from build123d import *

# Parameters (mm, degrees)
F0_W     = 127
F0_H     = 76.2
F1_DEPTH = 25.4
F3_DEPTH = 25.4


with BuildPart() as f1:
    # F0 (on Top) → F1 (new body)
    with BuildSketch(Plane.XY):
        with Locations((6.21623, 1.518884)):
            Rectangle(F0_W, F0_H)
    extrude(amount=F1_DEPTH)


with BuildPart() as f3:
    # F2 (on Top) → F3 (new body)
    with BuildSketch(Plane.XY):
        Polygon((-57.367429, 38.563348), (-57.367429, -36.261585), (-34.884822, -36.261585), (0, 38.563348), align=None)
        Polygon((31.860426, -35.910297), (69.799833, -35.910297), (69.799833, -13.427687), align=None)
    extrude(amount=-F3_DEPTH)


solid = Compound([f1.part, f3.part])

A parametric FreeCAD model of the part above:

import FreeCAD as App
import Part
import Sketcher

V = App.Vector
Q = App.Units.Quantity

doc = App.newDocument("Part")
body = doc.addObject("PartDesign::Body", "Body")

# Sketch on XY plane
sketch1 = body.newObject("Sketcher::SketchObject", "Sketch")
sketch1.AttachmentSupport = (doc.getObject("XY_Plane"), [""])
sketch1.MapMode = "FlatFace"
sketch1.addGeometry(Part.LineSegment(V(-57, 40, 0), V(-57, -37, 0)), False)
sketch1.addGeometry(Part.LineSegment(V(-57, -37, 0), V(70, -37, 0)), False)
sketch1.addGeometry(Part.LineSegment(V(70, -37, 0), V(70, 40, 0)), False)
sketch1.addGeometry(Part.LineSegment(V(70, 40, 0), V(-57, 40, 0)), False)
sketch1.addConstraint(Sketcher.Constraint("Coincident", 0, 2, 1, 1))
sketch1.addConstraint(Sketcher.Constraint("Coincident", 1, 2, 2, 1))
sketch1.addConstraint(Sketcher.Constraint("Coincident", 2, 2, 3, 1))
sketch1.addConstraint(Sketcher.Constraint("Coincident", 3, 2, 0, 1))
sketch1.addConstraint(Sketcher.Constraint("Vertical", 0))
sketch1.addConstraint(Sketcher.Constraint("Horizontal", 1))
sketch1.addConstraint(Sketcher.Constraint("Vertical", 2))
sketch1.addConstraint(Sketcher.Constraint("Horizontal", 3))
sketch1.addConstraint(Sketcher.Constraint("DistanceX", 1, 1, 1, 2, Q("5 in")))
sketch1.addConstraint(Sketcher.Constraint("DistanceY", 0, 2, 0, 1, Q("3 in")))
sketch1.addConstraint(Sketcher.Constraint("DistanceX", 0, 2, -1, 1, 57.28377))
sketch1.addConstraint(Sketcher.Constraint("DistanceY", 0, 2, -1, 1, 36.581116))
pad1 = body.newObject("PartDesign::Pad", "Pad")
pad1.Profile = sketch1
pad1.Length = Q("1 in")
body2 = doc.addObject("PartDesign::Body", "Body001")
body2.AllowCompound = True

# Sketch on XY plane
sketch2 = body2.newObject("Sketcher::SketchObject", "Sketch001")
sketch2.AttachmentSupport = (doc.getObject("XY_Plane001"), [""])
sketch2.MapMode = "FlatFace"
sketch2.addGeometry(Part.LineSegment(V(-57, 39, 0), V(-57, -36, 0)), False)
sketch2.addGeometry(Part.LineSegment(V(-57, -36, 0), V(-35, -36, 0)), False)
sketch2.addGeometry(Part.LineSegment(V(-35, -36, 0), V(0, 39, 0)), False)
sketch2.addGeometry(Part.LineSegment(V(0, 39, 0), V(-57, 39, 0)), False)
sketch2.addGeometry(Part.LineSegment(V(32, -36, 0), V(70, -36, 0)), False)
sketch2.addGeometry(Part.LineSegment(V(70, -36, 0), V(70, -13, 0)), False)
sketch2.addGeometry(Part.LineSegment(V(70, -13, 0), V(32, -36, 0)), False)
sketch2.addConstraint(Sketcher.Constraint("Coincident", 0, 2, 1, 1))
sketch2.addConstraint(Sketcher.Constraint("Coincident", 1, 2, 2, 1))
sketch2.addConstraint(Sketcher.Constraint("Coincident", 2, 2, 3, 1))
sketch2.addConstraint(Sketcher.Constraint("Coincident", 3, 2, 0, 1))
sketch2.addConstraint(Sketcher.Constraint("Coincident", 4, 2, 5, 1))
sketch2.addConstraint(Sketcher.Constraint("Coincident", 5, 2, 6, 1))
sketch2.addConstraint(Sketcher.Constraint("Coincident", 6, 2, 4, 1))
sketch2.addConstraint(Sketcher.Constraint("Vertical", 0))
sketch2.addConstraint(Sketcher.Constraint("Horizontal", 1))
sketch2.addConstraint(Sketcher.Constraint("Horizontal", 3))
sketch2.addConstraint(Sketcher.Constraint("Horizontal", 4))
sketch2.addConstraint(Sketcher.Constraint("Vertical", 5))
sketch2.addConstraint(Sketcher.Constraint("PointOnObject", 2, 2, -2))
sketch2.addConstraint(Sketcher.Constraint("DistanceX", 3, 2, 3, 1, 57.367429))
sketch2.addConstraint(Sketcher.Constraint("DistanceY", 5, 1, 5, 2, 22.48261))
sketch2.addConstraint(Sketcher.Constraint("Distance", 6, 44.100639))
sketch2.addConstraint(Sketcher.Constraint("DistanceX", 1, 1, 1, 2, 22.482607))
sketch2.addConstraint(Sketcher.Constraint("DistanceY", 0, 2, 0, 1, 74.824933))
sketch2.addConstraint(Sketcher.Constraint("DistanceX", 1, 2, 6, 2, 66.745248))
sketch2.addConstraint(Sketcher.Constraint("DistanceY", 0, 2, -1, 1, 36.261585))
sketch2.addConstraint(Sketcher.Constraint("DistanceY", 4, 2, -1, 1, 35.910297))
pad2 = body2.newObject("PartDesign::Pad", "Pad001")
pad2.Profile = sketch2
pad2.Length = Q("1 in")
pad2.Reversed = True

doc.recompute()
